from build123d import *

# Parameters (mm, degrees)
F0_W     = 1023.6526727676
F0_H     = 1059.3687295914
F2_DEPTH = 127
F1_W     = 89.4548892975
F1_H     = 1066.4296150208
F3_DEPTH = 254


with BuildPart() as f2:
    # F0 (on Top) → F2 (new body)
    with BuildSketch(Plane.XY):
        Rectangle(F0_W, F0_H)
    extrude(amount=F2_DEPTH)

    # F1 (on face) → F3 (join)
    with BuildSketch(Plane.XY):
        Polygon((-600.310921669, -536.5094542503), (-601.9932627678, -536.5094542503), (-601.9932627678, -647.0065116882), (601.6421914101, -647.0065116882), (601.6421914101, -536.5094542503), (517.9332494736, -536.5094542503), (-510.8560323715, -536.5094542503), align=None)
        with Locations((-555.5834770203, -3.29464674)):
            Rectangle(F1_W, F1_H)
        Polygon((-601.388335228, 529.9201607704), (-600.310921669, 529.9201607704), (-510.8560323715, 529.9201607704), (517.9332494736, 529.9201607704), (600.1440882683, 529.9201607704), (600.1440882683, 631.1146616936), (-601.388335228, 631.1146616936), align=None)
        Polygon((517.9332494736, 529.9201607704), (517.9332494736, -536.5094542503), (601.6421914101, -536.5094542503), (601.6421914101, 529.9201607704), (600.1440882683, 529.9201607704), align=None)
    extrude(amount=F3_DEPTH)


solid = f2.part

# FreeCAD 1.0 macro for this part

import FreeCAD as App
import Part
import Sketcher

doc = App.newDocument("Part")
params = doc.addObject("Spreadsheet::Sheet", "Params")
for row, (alias, value) in enumerate([
    ("pad1_length", "5 in"),
    ("pad2_length", "10 in"),
], start=1):
    params.set(f"A{row}", alias)
    params.set(f"B{row}", "=" + value)
    params.setAlias(f"B{row}", alias)

body = doc.addObject("PartDesign::Body", "Body")

# Sketch on XY plane
sketch1 = body.newObject("Sketcher::SketchObject", "Sketch")
sketch1.AttachmentSupport = (doc.getObject("XY_Plane"), [""])
sketch1.MapMode = "FlatFace"
sketch1.addGeometry(Part.LineSegment(App.Vector(-511.826336, 529.684365, 0), App.Vector(-511.826336, -529.684365, 0)), False)
sketch1.addGeometry(Part.LineSegment(App.Vector(-511.826336, -529.684365, 0), App.Vector(511.826336, -529.684365, 0)), False)
sketch1.addGeometry(Part.LineSegment(App.Vector(511.826336, -529.684365, 0), App.Vector(511.826336, 529.684365, 0)), False)
sketch1.addGeometry(Part.LineSegment(App.Vector(511.826336, 529.684365, 0), App.Vector(-511.826336, 529.684365, 0)), False)
sketch1.addConstraint(Sketcher.Constraint("Coincident", 0, 2, 1, 1))
sketch1.addConstraint(Sketcher.Constraint("Coincident", 1, 2, 2, 1))
sketch1.addConstraint(Sketcher.Constraint("Coincident", 2, 2, 3, 1))
sketch1.addConstraint(Sketcher.Constraint("Coincident", 3, 2, 0, 1))
sketch1.addConstraint(Sketcher.Constraint("Vertical", 0))
sketch1.addConstraint(Sketcher.Constraint("Horizontal", 1))
sketch1.addConstraint(Sketcher.Constraint("Vertical", 2))
sketch1.addConstraint(Sketcher.Constraint("Horizontal", 3))
sketch1.addConstraint(Sketcher.Constraint("Symmetric", 0, 2, 2, 2, -1, 1))
sketch1.addConstraint(Sketcher.Constraint("DistanceY", 0, 2, 0, 1, 1059.36873))
sketch1.addConstraint(Sketcher.Constraint("DistanceX", 1, 1, 1, 2, 1023.652673))
pad1 = body.newObject("PartDesign::Pad", "Pad")
pad1.Profile = sketch1
pad1.setExpression("Length", "Params.pad1_length")

# Sketch on XY plane
sketch2 = body.newObject("Sketcher::SketchObject", "Sketch001")
sketch2.AttachmentSupport = (doc.getObject("XY_Plane"), [""])
sketch2.MapMode = "FlatFace"
sketch2.addGeometry(Part.LineSegment(App.Vector(-601.993263, -536.509454, 0), App.Vector(-601.993263, -647.006512, 0)), False)
sketch2.addGeometry(Part.LineSegment(App.Vector(-601.993263, -647.006512, 0), App.Vector(601.642191, -647.006512, 0)), False)
sketch2.addGeometry(Part.LineSegment(App.Vector(601.642191, -647.006512, 0), App.Vector(601.642191, 529.920161, 0)), False)
sketch2.addGeometry(Part.LineSegment(App.Vector(601.642191, 529.920161, 0), App.Vector(600.144088, 529.920161, 0)), False)
sketch2.addGeometry(Part.LineSegment(App.Vector(600.144088, 529.920161, 0), App.Vector(600.144088, 631.114662, 0)), False)
sketch2.addGeometry(Part.LineSegment(App.Vector(600.144088, 631.114662, 0), App.Vector(-601.388335, 631.114662, 0)), False)
sketch2.addGeometry(Part.LineSegment(App.Vector(-601.388335, 631.114662, 0), App.Vector(-601.388335, 529.920161, 0)), False)
sketch2.addGeometry(Part.LineSegment(App.Vector(-601.388335, 529.920161, 0), App.Vector(-600.310922, 529.920161, 0)), False)
sketch2.addGeometry(Part.LineSegment(App.Vector(-600.310922, 529.920161, 0), App.Vector(-600.310922, -536.509454, 0)), False)
sketch2.addGeometry(Part.LineSegment(App.Vector(-600.310922, -536.509454, 0), App.Vector(-601.993263, -536.509454, 0)), False)
sketch2.addGeometry(Part.LineSegment(App.Vector(517.933249, -536.509454, 0), App.Vector(-510.856032, -536.509454, 0)), False)
sketch2.addGeometry(Part.LineSegment(App.Vector(-510.856032, -536.509454, 0), App.Vector(-510.856032, 529.920161, 0)), False)
sketch2.addGeometry(Part.LineSegment(App.Vector(-510.856032, 529.920161, 0), App.Vector(517.933249, 529.920161, 0)), False)
sketch2.addGeometry(Part.LineSegment(App.Vector(517.933249, 529.920161, 0), App.Vector(517.933249, -536.509454, 0)), False)
sketch2.addConstraint(Sketcher.Constraint("Coincident", 0, 2, 1, 1))
sketch2.addConstraint(Sketcher.Constraint("Coincident", 1, 2, 2, 1))
sketch2.addConstraint(Sketcher.Constraint("Coincident", 2, 2, 3, 1))
sketch2.addConstraint(Sketcher.Constraint("Coincident", 3, 2, 4, 1))
sketch2.addConstraint(Sketcher.Constraint("Coincident", 4, 2, 5, 1))
sketch2.addConstraint(Sketcher.Constraint("Coincident", 5, 2, 6, 1))
sketch2.addConstraint(Sketcher.Constraint("Coincident", 6, 2, 7, 1))
sketch2.addConstraint(Sketcher.Constraint("Coincident", 7, 2, 8, 1))
sketch2.addConstraint(Sketcher.Constraint("Coincident", 8, 2, 9, 1))
sketch2.addConstraint(Sketcher.Constraint("Coincident", 9, 2, 0, 1))
sketch2.addConstraint(Sketcher.Constraint("Coincident", 10, 2, 11, 1))
sketch2.addConstraint(Sketcher.Constraint("Coincident", 11, 2, 12, 1))
sketch2.addConstraint(Sketcher.Constraint("Coincident", 12, 2, 13, 1))
sketch2.addConstraint(Sketcher.Constraint("Coincident", 13, 2, 10, 1))
sketch2.addConstraint(Sketcher.Constraint("Vertical", 0))
sketch2.addConstraint(Sketcher.Constraint("Horizontal", 1))
sketch2.addConstraint(Sketcher.Constraint("Vertical", 2))
sketch2.addConstraint(Sketcher.Constraint("Horizontal", 3))
sketch2.addConstraint(Sketcher.Constraint("Vertical", 4))
sketch2.addConstraint(Sketcher.Constraint("Horizontal", 5))
sketch2.addConstraint(Sketcher.Constraint("Vertical", 6))
sketch2.addConstraint(Sketcher.Constraint("Horizontal", 7))
sketch2.addConstraint(Sketcher.Constraint("Vertical", 8))
sketch2.addConstraint(Sketcher.Constraint("Horizontal", 9))
sketch2.addConstraint(Sketcher.Constraint("Horizontal", 10))
sketch2.addConstraint(Sketcher.Constraint("Vertical", 11))
sketch2.addConstraint(Sketcher.Constraint("Horizontal", 12))
sketch2.addConstraint(Sketcher.Constraint("Vertical", 13))
sketch2.addConstraint(Sketcher.Constraint("Horizontal", 3, 2, 6, 2))
sketch2.addConstraint(Sketcher.Constraint("Horizontal", 9, 2, 10, 2))
sketch2.addConstraint(Sketcher.Constraint("Horizontal", 7, 2, 11, 2))
sketch2.addConstraint(Sketcher.Constraint("DistanceY", 4, 1, 4, 2, 101.194501))
sketch2.addConstraint(Sketcher.Constraint("DistanceX", 9, 2, 9, 1, 1.682341))
sketch2.addConstraint(Sketcher.Constraint("DistanceX", 10, 2, 10, 1, 1028.789282))
sketch2.addConstraint(Sketcher.Constraint("DistanceX", 1, 1, 1, 2, 1203.635454))
sketch2.addConstraint(Sketcher.Constraint("DistanceX", 3, 2, 3, 1, 1.498103))
sketch2.addConstraint(Sketcher.Constraint("DistanceX", 5, 2, 5, 1, 1201.532423))
sketch2.addConstraint(Sketcher.Constraint("DistanceY", 0, 2, 0, 1, 110.497057))
sketch2.addConstraint(Sketcher.Constraint("DistanceY", 2, 1, 2, 2, 1176.926672))
sketch2.addConstraint(Sketcher.Constraint("DistanceY", 0, 2, -1, 1, 647.006512))
sketch2.addConstraint(Sketcher.Constraint("DistanceX", -1, 1, 1, 2, 601.642191))
sketch2.addConstraint(Sketcher.Constraint("DistanceX", -1, 1, 12, 2, 517.933249))
pad2 = body.newObject("PartDesign::Pad", "Pad001")
pad2.Profile = sketch2
pad2.setExpression("Length", "Params.pad2_length")

doc.recompute()
